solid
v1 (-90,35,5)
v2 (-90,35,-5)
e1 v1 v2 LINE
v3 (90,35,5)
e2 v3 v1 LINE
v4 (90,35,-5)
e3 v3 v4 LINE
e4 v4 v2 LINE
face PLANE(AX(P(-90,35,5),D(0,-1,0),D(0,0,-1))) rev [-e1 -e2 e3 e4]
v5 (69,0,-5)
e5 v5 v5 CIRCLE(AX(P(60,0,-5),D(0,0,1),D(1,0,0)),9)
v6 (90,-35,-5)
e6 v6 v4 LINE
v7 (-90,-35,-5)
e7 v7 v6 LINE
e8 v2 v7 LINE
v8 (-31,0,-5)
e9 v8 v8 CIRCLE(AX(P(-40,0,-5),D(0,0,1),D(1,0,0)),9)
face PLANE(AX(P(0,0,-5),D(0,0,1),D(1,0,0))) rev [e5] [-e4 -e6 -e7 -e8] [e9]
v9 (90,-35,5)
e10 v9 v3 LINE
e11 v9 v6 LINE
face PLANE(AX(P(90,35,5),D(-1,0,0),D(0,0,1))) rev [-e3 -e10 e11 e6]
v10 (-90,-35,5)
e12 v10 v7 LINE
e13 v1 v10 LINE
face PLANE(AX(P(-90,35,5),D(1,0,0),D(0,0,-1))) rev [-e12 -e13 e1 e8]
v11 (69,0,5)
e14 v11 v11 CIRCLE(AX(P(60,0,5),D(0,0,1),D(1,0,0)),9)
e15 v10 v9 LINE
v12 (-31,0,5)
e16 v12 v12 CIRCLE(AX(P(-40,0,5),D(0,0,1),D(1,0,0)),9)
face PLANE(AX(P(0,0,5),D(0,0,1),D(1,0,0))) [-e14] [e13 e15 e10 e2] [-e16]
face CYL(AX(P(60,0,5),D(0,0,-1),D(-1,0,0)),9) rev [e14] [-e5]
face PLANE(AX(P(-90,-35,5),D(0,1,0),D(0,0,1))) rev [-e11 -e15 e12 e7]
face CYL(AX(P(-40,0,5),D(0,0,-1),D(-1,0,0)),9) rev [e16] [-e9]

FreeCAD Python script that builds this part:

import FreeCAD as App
import Part
import Sketcher

doc = App.newDocument("Part")
body = doc.addObject("PartDesign::Body", "Body")

# Sketch on XY plane
sketch1 = body.newObject("Sketcher::SketchObject", "Sketch")
sketch1.AttachmentSupport = (doc.getObject("XY_Plane"), [""])
sketch1.MapMode = "FlatFace"
sketch1.addGeometry(Part.LineSegment(App.Vector(-90, 35, 0), App.Vector(-90, -35, 0)), False)
sketch1.addGeometry(Part.LineSegment(App.Vector(-90, -35, 0), App.Vector(90, -35, 0)), False)
sketch1.addGeometry(Part.LineSegment(App.Vector(90, -35, 0), App.Vector(90, 35, 0)), False)
sketch1.addGeometry(Part.LineSegment(App.Vector(90, 35, 0), App.Vector(-90, 35, 0)), False)
sketch1.addGeometry(Part.Circle(App.Vector(-40, 0, 0), App.Vector(0, 0, 1), 9), False)
sketch1.addGeometry(Part.Circle(App.Vector(60, 0, 0), App.Vector(0, 0, 1), 9), False)
sketch1.addConstraint(Sketcher.Constraint("Coincident", 0, 2, 1, 1))
sketch1.addConstraint(Sketcher.Constraint("Coincident", 1, 2, 2, 1))
sketch1.addConstraint(Sketcher.Constraint("Coincident", 2, 2, 3, 1))
sketch1.addConstraint(Sketcher.Constraint("Coincident", 3, 2, 0, 1))
sketch1.addConstraint(Sketcher.Constraint("Vertical", 0))
sketch1.addConstraint(Sketcher.Constraint("Horizontal", 1))
sketch1.addConstraint(Sketcher.Constraint("Vertical", 2))
sketch1.addConstraint(Sketcher.Constraint("Horizontal", 3))
sketch1.addConstraint(Sketcher.Constraint("Equal", 4, 5))
sketch1.addConstraint(Sketcher.Constraint("Symmetric", 0, 2, 2, 2, -1, 1))
sketch1.addConstraint(Sketcher.Constraint("PointOnObject", 4, 3, -1))
sketch1.addConstraint(Sketcher.Constraint("PointOnObject", 5, 3, -1))
sketch1.addConstraint(Sketcher.Constraint("Diameter", 4, 18.0))
sketch1.addConstraint(Sketcher.Constraint("DistanceX", 1, 1, 1, 2, 180.0))
sketch1.addConstraint(Sketcher.Constraint("DistanceY", 0, 2, 0, 1, 70.0))
sketch1.addConstraint(Sketcher.Constraint("DistanceX", 4, 3, -1, 1, 40.0))
sketch1.addConstraint(Sketcher.Constraint("DistanceX", -1, 1, 5, 3, 60.0))
pad1 = body.newObject("PartDesign::Pad", "Pad")
pad1.Profile = sketch1
pad1.Length = 10
pad1.Midplane = True

doc.recompute()
